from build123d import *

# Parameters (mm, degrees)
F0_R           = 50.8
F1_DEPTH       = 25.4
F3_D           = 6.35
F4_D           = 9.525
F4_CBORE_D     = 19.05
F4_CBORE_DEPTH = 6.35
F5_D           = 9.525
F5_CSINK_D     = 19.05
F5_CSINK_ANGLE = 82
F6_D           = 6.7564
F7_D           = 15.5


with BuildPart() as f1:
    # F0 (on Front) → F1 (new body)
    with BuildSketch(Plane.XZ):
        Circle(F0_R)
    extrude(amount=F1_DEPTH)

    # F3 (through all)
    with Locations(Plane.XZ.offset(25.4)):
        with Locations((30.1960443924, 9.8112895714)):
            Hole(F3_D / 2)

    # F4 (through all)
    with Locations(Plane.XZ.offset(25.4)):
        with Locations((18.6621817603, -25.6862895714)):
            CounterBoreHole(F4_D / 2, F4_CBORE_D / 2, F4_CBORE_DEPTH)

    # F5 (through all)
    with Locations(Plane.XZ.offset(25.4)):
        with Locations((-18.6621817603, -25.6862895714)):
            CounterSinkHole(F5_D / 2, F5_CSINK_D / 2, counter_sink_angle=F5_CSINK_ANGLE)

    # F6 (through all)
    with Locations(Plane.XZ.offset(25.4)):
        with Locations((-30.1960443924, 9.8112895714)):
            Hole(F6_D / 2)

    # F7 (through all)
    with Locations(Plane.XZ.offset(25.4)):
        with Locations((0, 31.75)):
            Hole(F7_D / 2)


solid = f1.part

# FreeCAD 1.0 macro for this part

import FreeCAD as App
import Part
import Sketcher
from FreeCAD import Vector
Q = App.Units.Quantity

doc = App.newDocument("Part")
body = doc.addObject("PartDesign::Body", "Body")

# Sketch on XZ plane
sketch1 = body.newObject("Sketcher::SketchObject", "Sketch")
sketch1.AttachmentSupport = (doc.getObject("XZ_Plane"), [""])
sketch1.MapMode = "FlatFace"
sketch1.addGeometry(Part.Circle(Vector(0, 0, 0), Vector(0, 0, 1), 51), False)
sketch1.addConstraint([
    Sketcher.Constraint("Coincident", 0, 3, -1, 1),
    Sketcher.Constraint("Diameter", 0, Q("4 in")),
])
pad1 = body.newObject("PartDesign::Pad", "Pad")
pad1.Profile = sketch1
pad1.Length = Q("1 in")

# Sketch on XZ plane
sketch2 = body.newObject("Sketcher::SketchObject", "Sketch001")
sketch2.AttachmentSupport = (doc.getObject("XZ_Plane"), [""])
sketch2.MapMode = "FlatFace"
sketch2.AttachmentOffset = App.Placement(Vector(0, 0, 1 * 25.4), App.Rotation())
sketch2.addGeometry(Part.Circle(Vector(30.2, 9.8, 0), Vector(0, 0, 1), 3.2), False)
sketch2.addConstraint([
    Sketcher.Constraint("Diameter", 0, Q("0.25 in")),
    Sketcher.Constraint("DistanceY", -1, 1, 0, 3, 9.81129),
    Sketcher.Constraint("DistanceX", -1, 1, 0, 3, 30.196044),
])
doc.recompute()
hole = body.newObject("PartDesign::Hole", "Hole")
hole.Profile = sketch2
hole.ThreadType = "None"
hole.Diameter = Q("0.25 in")
hole.DepthType = "ThroughAll"

# Sketch on XZ plane
sketch3 = body.newObject("Sketcher::SketchObject", "Sketch002")
sketch3.AttachmentSupport = (doc.getObject("XZ_Plane"), [""])
sketch3.MapMode = "FlatFace"
sketch3.AttachmentOffset = App.Placement(Vector(0, 0, 1 * 25.4), App.Rotation())
sketch3.addGeometry(Part.Circle(Vector(18.7, -25.7, 0), Vector(0, 0, 1), 4.8), False)
sketch3.addConstraint([
    Sketcher.Constraint("Diameter", 0, Q("0.375 in")),
    Sketcher.Constraint("DistanceX", -1, 1, 0, 3, 18.662182),
    Sketcher.Constraint("DistanceY", 0, 3, -1, 1, 25.68629),
])
doc.recompute()
hole2 = body.newObject("PartDesign::Hole", "Hole001")
hole2.Profile = sketch3
hole2.ThreadType = "None"
hole2.Diameter = Q("0.375 in")
hole2.DepthType = "ThroughAll"
hole2.HoleCutType = "Counterbore"
hole2.HoleCutDiameter = Q("0.75 in")
hole2.HoleCutDepth = Q("0.25 in")

# Sketch on XZ plane
sketch4 = body.newObject("Sketcher::SketchObject", "Sketch003")
sketch4.AttachmentSupport = (doc.getObject("XZ_Plane"), [""])
sketch4.MapMode = "FlatFace"
sketch4.AttachmentOffset = App.Placement(Vector(0, 0, 1 * 25.4), App.Rotation())
sketch4.addGeometry(Part.Circle(Vector(-18.7, -25.7, 0), Vector(0, 0, 1), 4.8), False)
sketch4.addConstraint([
    Sketcher.Constraint("Diameter", 0, Q("0.375 in")),
    Sketcher.Constraint("DistanceX", 0, 3, -1, 1, 18.662182),
    Sketcher.Constraint("DistanceY", 0, 3, -1, 1, 25.68629),
])
doc.recompute()
hole3 = body.newObject("PartDesign::Hole", "Hole002")
hole3.Profile = sketch4
hole3.ThreadType = "None"
hole3.Diameter = Q("0.375 in")
hole3.DepthType = "ThroughAll"
hole3.HoleCutType = "Countersink"
hole3.HoleCutDiameter = Q("0.75 in")
hole3.HoleCutCountersinkAngle = 82

# Sketch on XZ plane
sketch5 = body.newObject("Sketcher::SketchObject", "Sketch004")
sketch5.AttachmentSupport = (doc.getObject("XZ_Plane"), [""])
sketch5.MapMode = "FlatFace"
sketch5.AttachmentOffset = App.Placement(Vector(0, 0, 1 * 25.4), App.Rotation())
sketch5.addGeometry(Part.Circle(Vector(-30.2, 9.8, 0), Vector(0, 0, 1), 3.4), False)
sketch5.addConstraint([
    Sketcher.Constraint("Diameter", 0, Q("0.266 in")),
    Sketcher.Constraint("DistanceY", -1, 1, 0, 3, 9.81129),
    Sketcher.Constraint("DistanceX", 0, 3, -1, 1, 30.196044),
])
doc.recompute()
hole4 = body.newObject("PartDesign::Hole", "Hole003")
hole4.Profile = sketch5
hole4.ThreadType = "None"
hole4.Diameter = Q("0.266 in")
hole4.DepthType = "ThroughAll"

# Sketch on XZ plane
sketch6 = body.newObject("Sketcher::SketchObject", "Sketch005")
sketch6.AttachmentSupport = (doc.getObject("XZ_Plane"), [""])
sketch6.MapMode = "FlatFace"
sketch6.AttachmentOffset = App.Placement(Vector(0, 0, 1 * 25.4), App.Rotation())
sketch6.addGeometry(Part.Circle(Vector(0, 32, 0), Vector(0, 0, 1), 8), False)
sketch6.addConstraint([
    Sketcher.Constraint("PointOnObject", 0, 3, -2),
    Sketcher.Constraint("Diameter", 0, 15.5),
    Sketcher.Constraint("DistanceY", -1, 1, 0, 3, Q("1.25 in")),
])
doc.recompute()
hole5 = body.newObject("PartDesign::Hole", "Hole004")
hole5.Profile = sketch6
hole5.ThreadType = "None"
hole5.Diameter = 15.5
hole5.DepthType = "ThroughAll"

doc.recompute()
